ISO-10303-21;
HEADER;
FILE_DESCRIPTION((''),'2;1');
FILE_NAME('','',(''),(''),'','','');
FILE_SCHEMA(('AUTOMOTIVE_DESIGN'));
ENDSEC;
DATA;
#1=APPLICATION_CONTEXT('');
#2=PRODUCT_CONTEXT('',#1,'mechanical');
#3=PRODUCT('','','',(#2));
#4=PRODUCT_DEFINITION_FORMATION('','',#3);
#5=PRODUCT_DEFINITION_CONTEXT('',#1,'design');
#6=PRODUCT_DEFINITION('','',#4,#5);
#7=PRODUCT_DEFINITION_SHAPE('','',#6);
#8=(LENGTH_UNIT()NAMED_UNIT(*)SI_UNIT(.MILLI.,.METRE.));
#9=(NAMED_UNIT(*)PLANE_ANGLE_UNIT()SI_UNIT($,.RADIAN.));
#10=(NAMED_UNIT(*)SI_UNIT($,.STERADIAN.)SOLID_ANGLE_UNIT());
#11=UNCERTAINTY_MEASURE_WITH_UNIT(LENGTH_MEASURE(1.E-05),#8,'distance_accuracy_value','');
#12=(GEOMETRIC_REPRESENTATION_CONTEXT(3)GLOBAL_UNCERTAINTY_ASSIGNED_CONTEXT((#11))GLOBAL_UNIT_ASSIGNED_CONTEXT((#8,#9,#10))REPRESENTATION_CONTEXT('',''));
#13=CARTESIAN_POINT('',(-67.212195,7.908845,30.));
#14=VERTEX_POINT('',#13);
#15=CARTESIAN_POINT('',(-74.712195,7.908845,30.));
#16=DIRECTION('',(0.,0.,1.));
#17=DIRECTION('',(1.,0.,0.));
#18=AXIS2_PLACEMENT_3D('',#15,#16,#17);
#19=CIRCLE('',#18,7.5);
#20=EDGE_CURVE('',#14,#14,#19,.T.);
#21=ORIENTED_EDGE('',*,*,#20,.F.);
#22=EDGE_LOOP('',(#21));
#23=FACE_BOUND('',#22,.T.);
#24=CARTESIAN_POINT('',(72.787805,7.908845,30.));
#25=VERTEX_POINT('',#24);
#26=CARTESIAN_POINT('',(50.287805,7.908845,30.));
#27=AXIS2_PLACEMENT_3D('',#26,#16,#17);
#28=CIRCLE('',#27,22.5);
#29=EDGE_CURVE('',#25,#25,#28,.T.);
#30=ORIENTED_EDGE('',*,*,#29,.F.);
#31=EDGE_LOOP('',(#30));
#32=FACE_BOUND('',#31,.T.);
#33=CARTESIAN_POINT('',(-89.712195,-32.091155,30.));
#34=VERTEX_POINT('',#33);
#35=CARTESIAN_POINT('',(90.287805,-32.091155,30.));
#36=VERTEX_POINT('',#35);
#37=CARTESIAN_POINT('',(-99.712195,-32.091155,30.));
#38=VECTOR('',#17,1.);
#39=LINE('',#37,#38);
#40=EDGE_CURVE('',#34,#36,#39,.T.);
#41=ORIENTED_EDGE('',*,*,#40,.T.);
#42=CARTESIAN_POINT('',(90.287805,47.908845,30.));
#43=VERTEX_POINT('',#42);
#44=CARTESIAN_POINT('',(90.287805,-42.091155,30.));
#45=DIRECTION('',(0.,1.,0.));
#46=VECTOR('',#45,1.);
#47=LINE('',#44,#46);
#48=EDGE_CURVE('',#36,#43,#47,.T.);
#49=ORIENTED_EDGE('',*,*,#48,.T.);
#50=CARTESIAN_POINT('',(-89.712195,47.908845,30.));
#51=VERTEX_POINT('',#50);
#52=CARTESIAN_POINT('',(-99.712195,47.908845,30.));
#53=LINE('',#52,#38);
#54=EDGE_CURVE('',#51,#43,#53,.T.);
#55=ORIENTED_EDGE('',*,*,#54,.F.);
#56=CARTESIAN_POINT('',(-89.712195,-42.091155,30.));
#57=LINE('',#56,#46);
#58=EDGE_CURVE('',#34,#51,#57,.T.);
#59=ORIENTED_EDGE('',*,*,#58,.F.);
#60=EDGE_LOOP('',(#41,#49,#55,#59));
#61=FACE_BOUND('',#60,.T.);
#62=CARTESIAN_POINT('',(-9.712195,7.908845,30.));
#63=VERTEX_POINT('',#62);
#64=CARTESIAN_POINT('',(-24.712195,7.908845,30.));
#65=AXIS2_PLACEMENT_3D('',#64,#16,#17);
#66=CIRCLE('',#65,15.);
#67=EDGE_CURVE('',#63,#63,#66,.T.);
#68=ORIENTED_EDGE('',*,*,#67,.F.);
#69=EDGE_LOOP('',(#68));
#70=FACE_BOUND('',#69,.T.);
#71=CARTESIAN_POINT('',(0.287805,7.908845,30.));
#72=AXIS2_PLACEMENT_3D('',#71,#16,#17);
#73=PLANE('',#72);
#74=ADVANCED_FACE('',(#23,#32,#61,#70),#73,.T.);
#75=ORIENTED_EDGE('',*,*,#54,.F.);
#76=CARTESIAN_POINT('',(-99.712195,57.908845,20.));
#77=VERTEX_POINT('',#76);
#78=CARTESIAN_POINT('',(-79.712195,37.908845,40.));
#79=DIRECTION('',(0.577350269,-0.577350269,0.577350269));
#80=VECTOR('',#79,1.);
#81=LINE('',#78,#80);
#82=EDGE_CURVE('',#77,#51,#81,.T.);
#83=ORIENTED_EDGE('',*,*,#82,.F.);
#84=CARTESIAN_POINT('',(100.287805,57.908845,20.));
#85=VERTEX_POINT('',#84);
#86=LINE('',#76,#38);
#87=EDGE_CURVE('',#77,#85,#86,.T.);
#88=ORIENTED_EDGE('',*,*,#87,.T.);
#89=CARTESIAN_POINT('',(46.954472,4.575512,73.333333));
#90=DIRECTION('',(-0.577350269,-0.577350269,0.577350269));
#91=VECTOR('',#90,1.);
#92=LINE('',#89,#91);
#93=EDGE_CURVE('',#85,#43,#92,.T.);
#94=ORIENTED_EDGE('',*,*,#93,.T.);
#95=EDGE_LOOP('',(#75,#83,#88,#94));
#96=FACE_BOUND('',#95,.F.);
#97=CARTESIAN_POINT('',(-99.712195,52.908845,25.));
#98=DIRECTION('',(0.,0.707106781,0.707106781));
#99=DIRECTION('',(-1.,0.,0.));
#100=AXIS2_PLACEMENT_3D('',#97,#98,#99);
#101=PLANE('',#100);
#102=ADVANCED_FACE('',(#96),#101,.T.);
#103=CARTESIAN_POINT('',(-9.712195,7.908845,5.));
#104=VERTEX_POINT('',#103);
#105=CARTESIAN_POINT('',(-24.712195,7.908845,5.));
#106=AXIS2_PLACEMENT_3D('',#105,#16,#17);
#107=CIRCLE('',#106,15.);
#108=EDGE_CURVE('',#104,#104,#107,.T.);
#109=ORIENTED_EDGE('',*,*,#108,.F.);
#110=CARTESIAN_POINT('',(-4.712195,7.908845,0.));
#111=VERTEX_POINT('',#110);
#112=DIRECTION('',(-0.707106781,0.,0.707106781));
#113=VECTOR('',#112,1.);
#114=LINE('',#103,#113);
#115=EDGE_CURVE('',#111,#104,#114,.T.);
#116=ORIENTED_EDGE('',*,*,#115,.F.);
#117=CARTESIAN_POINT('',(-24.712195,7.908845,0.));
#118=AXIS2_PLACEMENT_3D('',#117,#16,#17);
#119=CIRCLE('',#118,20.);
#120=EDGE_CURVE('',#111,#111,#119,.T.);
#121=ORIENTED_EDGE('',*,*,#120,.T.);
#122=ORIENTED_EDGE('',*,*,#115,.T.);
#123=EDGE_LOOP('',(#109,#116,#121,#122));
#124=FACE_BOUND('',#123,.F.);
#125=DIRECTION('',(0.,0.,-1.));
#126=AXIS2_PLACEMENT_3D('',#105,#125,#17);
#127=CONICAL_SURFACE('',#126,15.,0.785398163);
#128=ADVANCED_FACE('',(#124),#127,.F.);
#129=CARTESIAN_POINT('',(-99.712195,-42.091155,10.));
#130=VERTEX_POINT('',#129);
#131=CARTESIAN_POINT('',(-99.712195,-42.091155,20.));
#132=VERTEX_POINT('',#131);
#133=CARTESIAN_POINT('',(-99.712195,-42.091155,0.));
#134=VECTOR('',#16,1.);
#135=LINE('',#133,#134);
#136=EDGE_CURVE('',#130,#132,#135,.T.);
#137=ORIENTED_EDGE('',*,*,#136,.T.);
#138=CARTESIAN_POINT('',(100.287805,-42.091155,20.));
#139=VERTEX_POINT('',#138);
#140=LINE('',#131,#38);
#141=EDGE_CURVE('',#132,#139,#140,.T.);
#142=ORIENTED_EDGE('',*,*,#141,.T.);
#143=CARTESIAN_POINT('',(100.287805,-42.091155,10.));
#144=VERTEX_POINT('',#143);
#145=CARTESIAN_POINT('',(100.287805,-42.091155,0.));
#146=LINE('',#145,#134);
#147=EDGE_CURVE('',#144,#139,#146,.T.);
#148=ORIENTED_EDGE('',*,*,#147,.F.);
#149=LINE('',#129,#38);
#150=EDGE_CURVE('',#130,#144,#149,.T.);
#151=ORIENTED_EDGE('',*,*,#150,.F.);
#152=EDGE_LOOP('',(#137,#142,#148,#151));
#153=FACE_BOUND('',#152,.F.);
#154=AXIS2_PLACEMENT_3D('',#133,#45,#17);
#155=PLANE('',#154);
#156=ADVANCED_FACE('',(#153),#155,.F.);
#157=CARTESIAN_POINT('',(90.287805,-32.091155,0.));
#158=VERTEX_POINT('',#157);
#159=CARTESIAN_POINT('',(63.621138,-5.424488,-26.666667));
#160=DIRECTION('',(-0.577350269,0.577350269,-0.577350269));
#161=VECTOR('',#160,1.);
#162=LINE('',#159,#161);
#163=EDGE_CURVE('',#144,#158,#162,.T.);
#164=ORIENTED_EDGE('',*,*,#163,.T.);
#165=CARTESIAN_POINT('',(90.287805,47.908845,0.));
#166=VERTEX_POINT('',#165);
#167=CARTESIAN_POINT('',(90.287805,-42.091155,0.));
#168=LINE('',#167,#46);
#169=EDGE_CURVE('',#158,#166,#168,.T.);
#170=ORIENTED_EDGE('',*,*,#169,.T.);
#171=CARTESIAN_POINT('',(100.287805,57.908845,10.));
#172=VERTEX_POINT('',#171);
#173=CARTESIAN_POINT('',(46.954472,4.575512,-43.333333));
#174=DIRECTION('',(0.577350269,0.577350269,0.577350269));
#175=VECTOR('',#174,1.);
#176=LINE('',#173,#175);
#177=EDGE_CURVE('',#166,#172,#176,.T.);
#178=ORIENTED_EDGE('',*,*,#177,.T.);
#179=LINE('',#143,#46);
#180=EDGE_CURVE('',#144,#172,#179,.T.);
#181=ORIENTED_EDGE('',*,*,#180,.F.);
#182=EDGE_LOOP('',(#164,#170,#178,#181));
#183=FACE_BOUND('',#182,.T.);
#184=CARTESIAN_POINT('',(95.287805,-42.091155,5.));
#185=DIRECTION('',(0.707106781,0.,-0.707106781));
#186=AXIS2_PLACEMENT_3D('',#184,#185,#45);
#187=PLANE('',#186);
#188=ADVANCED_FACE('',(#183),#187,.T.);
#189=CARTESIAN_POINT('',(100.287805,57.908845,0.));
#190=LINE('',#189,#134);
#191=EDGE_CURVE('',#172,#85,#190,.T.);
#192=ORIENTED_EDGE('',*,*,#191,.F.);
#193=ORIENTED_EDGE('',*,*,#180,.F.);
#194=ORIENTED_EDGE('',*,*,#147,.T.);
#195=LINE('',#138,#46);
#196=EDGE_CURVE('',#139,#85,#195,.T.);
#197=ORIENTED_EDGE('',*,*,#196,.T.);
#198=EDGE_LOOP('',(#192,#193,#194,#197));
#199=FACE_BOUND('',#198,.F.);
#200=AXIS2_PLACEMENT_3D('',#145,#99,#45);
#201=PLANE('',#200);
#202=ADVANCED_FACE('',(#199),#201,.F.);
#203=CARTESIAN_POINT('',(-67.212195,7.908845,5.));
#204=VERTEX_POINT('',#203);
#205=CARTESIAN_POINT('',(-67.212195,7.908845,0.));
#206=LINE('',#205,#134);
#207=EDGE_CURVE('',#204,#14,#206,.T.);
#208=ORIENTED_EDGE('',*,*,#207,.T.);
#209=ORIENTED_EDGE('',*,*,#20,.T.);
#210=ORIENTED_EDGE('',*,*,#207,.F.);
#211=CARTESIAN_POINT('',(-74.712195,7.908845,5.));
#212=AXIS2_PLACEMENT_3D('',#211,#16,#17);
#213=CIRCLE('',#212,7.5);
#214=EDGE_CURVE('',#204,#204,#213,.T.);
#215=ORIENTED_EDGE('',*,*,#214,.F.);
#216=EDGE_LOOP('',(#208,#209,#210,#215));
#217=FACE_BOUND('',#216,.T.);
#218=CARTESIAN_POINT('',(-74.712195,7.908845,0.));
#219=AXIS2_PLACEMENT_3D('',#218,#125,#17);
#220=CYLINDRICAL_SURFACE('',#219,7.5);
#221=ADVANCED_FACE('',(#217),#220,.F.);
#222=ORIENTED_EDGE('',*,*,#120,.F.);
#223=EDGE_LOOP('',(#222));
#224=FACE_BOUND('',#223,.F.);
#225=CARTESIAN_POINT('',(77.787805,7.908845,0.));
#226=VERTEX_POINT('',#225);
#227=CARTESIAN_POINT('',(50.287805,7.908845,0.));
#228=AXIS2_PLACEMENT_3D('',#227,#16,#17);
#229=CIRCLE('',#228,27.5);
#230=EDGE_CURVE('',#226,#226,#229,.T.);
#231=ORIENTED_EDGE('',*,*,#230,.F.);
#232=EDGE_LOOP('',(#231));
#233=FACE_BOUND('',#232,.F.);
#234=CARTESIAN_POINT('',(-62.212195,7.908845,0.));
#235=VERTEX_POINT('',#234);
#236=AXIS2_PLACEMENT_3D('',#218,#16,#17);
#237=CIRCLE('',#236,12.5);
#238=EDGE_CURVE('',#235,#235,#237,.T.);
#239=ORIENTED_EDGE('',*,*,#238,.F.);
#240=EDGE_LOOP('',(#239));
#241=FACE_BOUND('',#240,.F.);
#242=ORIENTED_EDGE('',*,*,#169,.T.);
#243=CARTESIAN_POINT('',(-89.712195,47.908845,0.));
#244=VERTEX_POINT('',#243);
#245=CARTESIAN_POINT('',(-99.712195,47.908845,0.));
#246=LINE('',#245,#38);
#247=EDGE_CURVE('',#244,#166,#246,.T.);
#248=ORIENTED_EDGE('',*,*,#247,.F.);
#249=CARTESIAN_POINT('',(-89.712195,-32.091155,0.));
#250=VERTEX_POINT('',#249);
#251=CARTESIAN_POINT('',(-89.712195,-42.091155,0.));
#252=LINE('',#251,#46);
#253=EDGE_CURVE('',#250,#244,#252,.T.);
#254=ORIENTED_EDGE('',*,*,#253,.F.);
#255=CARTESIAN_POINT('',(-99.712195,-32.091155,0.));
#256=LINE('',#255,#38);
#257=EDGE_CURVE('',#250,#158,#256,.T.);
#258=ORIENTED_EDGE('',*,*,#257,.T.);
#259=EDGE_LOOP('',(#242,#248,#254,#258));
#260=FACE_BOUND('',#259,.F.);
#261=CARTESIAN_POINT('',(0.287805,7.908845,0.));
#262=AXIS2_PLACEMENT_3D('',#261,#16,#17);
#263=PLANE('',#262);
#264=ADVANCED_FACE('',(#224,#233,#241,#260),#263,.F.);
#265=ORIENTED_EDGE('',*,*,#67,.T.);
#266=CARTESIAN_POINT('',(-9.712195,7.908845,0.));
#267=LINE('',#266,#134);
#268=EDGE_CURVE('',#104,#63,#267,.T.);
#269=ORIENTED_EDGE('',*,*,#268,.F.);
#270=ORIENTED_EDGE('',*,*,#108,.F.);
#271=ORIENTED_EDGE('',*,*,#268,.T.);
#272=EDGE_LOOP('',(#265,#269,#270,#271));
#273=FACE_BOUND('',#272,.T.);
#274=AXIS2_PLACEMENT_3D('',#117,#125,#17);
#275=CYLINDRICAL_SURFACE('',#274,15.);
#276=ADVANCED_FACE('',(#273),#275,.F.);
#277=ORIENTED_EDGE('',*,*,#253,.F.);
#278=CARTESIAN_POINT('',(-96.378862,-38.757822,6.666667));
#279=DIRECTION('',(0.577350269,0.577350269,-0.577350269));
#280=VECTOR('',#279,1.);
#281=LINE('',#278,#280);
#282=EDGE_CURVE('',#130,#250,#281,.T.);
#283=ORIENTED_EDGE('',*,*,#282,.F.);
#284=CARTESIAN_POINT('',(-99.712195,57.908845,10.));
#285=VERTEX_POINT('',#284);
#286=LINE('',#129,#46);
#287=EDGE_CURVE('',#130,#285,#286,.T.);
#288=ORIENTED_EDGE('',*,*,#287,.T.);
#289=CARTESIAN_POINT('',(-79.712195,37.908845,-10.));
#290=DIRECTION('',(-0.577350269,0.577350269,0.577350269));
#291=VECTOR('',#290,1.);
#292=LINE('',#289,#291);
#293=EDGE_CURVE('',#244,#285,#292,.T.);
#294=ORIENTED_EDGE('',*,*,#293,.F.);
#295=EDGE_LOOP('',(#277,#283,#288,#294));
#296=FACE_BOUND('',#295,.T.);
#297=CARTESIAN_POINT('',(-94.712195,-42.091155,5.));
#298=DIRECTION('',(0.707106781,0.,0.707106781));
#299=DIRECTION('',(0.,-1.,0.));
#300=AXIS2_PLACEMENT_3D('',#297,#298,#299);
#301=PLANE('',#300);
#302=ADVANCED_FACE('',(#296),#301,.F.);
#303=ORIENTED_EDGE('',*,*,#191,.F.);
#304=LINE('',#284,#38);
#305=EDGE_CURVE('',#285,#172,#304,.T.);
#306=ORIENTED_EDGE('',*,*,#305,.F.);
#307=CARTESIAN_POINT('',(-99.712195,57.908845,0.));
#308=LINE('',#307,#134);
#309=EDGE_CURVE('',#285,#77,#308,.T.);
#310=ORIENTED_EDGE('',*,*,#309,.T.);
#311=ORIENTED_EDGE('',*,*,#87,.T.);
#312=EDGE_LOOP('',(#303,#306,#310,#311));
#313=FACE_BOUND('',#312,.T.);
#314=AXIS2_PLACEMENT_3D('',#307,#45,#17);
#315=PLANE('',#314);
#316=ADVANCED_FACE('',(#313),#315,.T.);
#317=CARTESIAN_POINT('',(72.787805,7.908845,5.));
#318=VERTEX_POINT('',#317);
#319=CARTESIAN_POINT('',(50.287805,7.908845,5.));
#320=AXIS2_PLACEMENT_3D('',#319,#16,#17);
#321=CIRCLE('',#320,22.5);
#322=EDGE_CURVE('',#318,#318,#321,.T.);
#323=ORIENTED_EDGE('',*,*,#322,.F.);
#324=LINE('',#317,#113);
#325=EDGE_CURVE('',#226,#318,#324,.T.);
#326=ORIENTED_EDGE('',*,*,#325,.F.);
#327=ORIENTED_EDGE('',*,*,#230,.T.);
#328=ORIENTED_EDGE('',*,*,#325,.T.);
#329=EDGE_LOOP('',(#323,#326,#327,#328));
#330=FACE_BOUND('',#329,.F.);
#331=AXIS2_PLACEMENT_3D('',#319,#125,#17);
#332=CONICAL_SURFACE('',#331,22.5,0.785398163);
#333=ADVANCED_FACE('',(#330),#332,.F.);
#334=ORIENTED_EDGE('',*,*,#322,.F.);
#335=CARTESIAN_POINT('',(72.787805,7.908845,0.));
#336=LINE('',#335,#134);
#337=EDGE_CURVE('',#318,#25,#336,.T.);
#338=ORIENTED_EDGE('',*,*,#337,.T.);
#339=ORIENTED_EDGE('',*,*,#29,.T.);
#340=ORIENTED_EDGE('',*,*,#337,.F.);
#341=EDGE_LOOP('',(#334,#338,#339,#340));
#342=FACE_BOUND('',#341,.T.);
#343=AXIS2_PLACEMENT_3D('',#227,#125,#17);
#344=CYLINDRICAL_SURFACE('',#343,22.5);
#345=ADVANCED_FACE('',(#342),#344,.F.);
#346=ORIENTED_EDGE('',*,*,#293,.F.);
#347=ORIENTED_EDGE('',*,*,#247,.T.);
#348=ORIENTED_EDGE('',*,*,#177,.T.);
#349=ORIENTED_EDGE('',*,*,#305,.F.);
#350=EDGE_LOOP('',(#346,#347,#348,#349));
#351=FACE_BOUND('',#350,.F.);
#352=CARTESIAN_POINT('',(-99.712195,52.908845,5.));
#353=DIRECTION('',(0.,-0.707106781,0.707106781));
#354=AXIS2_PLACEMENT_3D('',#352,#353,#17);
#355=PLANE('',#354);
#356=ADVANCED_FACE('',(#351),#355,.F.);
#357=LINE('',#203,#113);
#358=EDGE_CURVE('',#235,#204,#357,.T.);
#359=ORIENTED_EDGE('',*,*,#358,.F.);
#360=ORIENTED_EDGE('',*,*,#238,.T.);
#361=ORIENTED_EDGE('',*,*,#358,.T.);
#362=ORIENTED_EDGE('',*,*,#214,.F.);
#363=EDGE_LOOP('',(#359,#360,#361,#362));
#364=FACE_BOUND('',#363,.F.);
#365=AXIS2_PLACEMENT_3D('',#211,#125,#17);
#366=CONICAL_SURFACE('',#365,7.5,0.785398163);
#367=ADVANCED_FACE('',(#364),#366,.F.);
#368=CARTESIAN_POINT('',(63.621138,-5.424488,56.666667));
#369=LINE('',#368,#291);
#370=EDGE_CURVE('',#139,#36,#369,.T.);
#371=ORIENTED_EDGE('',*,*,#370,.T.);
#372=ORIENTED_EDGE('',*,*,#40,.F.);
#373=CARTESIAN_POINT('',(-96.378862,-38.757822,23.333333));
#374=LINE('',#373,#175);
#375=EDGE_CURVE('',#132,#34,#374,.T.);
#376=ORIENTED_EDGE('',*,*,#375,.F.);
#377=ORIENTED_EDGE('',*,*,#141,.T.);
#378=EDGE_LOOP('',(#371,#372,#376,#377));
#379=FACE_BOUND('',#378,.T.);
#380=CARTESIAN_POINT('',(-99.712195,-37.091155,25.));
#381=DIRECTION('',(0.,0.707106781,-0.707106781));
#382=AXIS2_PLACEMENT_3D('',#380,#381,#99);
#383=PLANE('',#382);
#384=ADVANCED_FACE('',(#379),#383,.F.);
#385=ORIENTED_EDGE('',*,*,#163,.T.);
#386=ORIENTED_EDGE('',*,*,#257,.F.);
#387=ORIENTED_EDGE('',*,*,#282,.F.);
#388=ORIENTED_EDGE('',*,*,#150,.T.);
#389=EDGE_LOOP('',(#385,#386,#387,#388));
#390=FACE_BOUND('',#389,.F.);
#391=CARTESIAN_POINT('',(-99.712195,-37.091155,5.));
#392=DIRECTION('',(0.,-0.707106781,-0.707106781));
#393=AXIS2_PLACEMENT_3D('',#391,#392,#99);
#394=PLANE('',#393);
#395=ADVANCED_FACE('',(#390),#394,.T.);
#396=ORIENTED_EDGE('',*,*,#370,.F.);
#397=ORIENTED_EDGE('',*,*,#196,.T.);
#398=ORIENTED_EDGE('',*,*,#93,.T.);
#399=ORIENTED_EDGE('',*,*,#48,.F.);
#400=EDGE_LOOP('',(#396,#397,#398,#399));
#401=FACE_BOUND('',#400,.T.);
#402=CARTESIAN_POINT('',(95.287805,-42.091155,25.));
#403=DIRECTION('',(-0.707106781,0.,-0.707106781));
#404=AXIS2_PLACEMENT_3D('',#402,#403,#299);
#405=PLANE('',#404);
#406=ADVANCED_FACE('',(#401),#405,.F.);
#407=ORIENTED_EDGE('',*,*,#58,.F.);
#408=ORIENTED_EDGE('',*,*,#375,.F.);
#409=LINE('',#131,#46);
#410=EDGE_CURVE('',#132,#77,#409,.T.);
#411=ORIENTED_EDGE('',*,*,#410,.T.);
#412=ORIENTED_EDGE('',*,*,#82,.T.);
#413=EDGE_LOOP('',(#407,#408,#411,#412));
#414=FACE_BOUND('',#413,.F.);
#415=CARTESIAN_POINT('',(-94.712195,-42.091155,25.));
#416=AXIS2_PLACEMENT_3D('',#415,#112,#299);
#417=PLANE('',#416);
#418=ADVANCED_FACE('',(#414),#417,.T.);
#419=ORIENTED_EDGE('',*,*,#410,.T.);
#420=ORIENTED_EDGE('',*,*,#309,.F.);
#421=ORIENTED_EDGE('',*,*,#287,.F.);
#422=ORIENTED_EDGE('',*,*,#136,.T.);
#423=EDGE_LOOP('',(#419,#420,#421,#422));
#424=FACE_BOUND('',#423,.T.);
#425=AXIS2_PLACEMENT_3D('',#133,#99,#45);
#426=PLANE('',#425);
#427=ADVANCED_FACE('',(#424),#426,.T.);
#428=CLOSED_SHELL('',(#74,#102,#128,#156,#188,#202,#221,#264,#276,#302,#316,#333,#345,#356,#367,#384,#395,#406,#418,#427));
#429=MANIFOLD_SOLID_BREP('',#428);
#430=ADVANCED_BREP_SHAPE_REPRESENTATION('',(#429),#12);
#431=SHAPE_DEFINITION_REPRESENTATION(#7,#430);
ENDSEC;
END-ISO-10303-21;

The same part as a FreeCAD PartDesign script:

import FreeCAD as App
import Part
import Sketcher

V = App.Vector


def edges_at(feature, points):
    """Names of the edges that pass closest to the given points."""
    edges = feature.Shape.Edges
    near = lambda p: min(range(len(edges)), key=lambda i: edges[i].distToShape(Part.Vertex(*p))[0])
    return sorted({f"Edge{near(p) + 1}" for p in points})

doc = App.newDocument("Part")
body = doc.addObject("PartDesign::Body", "Body")

# Sketch on XY plane
sketch1 = body.newObject("Sketcher::SketchObject", "Sketch")
sketch1.AttachmentSupport = (doc.getObject("XY_Plane"), [""])
sketch1.MapMode = "FlatFace"
sketch1.addGeometry(Part.LineSegment(V(-100, 58, 0), V(-100, -42, 0)), False)
sketch1.addGeometry(Part.LineSegment(V(-100, -42, 0), V(100, -42, 0)), False)
sketch1.addGeometry(Part.LineSegment(V(100, -42, 0), V(100, 58, 0)), False)
sketch1.addGeometry(Part.LineSegment(V(100, 58, 0), V(-100, 58, 0)), False)
sketch1.addGeometry(Part.Circle(V(-75, 8, 0), V(0, 0, 1), 8), False)
sketch1.addGeometry(Part.Circle(V(-25, 8, 0), V(0, 0, 1), 15), False)
sketch1.addGeometry(Part.Circle(V(50, 8, 0), V(0, 0, 1), 22), False)
sketch1.addConstraint(Sketcher.Constraint("Coincident", 0, 2, 1, 1))
sketch1.addConstraint(Sketcher.Constraint("Coincident", 1, 2, 2, 1))
sketch1.addConstraint(Sketcher.Constraint("Coincident", 2, 2, 3, 1))
sketch1.addConstraint(Sketcher.Constraint("Coincident", 3, 2, 0, 1))
sketch1.addConstraint(Sketcher.Constraint("Vertical", 0))
sketch1.addConstraint(Sketcher.Constraint("Horizontal", 1))
sketch1.addConstraint(Sketcher.Constraint("Vertical", 2))
sketch1.addConstraint(Sketcher.Constraint("Horizontal", 3))
sketch1.addConstraint(Sketcher.Constraint("Horizontal", 4, 3, 5, 3))
sketch1.addConstraint(Sketcher.Constraint("Horizontal", 5, 3, 6, 3))
sketch1.addConstraint(Sketcher.Constraint("Diameter", 4, 15.0))
sketch1.addConstraint(Sketcher.Constraint("Diameter", 5, 30.0))
sketch1.addConstraint(Sketcher.Constraint("Diameter", 6, 45.0))
sketch1.addConstraint(Sketcher.Constraint("DistanceX", 1, 1, 1, 2, 200.0))
sketch1.addConstraint(Sketcher.Constraint("DistanceY", 0, 2, 0, 1, 100.0))
sketch1.addConstraint(Sketcher.Constraint("DistanceX", 4, 3, 5, 3, 50.0))
sketch1.addConstraint(Sketcher.Constraint("DistanceX", 5, 3, 6, 3, 75.0))
sketch1.addConstraint(Sketcher.Constraint("DistanceX", 0, 2, 4, 3, 25.0))
sketch1.addConstraint(Sketcher.Constraint("DistanceY", 0, 2, 4, 3, 50.0))
sketch1.addConstraint(Sketcher.Constraint("DistanceX", 4, 3, -1, 1, 74.712195))
sketch1.addConstraint(Sketcher.Constraint("DistanceY", -1, 1, 4, 3, 7.908845))
pad1 = body.newObject("PartDesign::Pad", "Pad")
pad1.Profile = sketch1
pad1.Length = 30
doc.recompute()

chamfer = body.newObject("PartDesign::Chamfer", "Chamfer")
chamfer.Base = (pad1, edges_at(pad1, [
    (0.288, 57.909, 30),
    (-99.712, 7.909, 30),
    (0.288, -42.091, 30),
    (100.288, 7.909, 30),
]))
chamfer.ChamferType = "Two distances"
chamfer.Size = 10
chamfer.Size2 = 10
doc.recompute()

chamfer2 = body.newObject("PartDesign::Chamfer", "Chamfer001")
chamfer2.Base = (chamfer, edges_at(chamfer, [
    (0.288, 57.909, 0),
    (-99.712, 7.909, 0),
    (0.288, -42.091, 0),
    (100.288, 7.909, 0),
]))
chamfer2.ChamferType = "Two distances"
chamfer2.Size = 10
chamfer2.Size2 = 10
doc.recompute()

chamfer3 = body.newObject("PartDesign::Chamfer", "Chamfer002")
chamfer3.Base = (chamfer2, edges_at(chamfer2, [(-82.212, 7.909, 0), (-39.712, 7.909, 0), (27.788, 7.909, 0)]))
chamfer3.ChamferType = "Two distances"
chamfer3.Size = 5
chamfer3.Size2 = 5

doc.recompute()
